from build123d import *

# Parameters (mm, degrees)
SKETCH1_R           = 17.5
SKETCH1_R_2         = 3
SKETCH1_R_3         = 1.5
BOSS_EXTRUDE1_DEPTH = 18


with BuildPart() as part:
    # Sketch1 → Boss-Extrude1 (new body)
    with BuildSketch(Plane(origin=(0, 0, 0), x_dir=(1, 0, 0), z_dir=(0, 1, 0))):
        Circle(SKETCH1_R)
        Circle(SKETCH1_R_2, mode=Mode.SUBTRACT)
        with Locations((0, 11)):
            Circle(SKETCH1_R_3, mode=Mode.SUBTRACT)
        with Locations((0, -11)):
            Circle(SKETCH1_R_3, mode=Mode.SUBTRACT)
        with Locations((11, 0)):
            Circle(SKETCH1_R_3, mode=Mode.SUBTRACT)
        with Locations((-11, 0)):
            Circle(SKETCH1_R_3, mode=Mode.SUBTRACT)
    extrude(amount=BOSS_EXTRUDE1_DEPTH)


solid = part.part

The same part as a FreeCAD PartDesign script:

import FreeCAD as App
import Part
import Sketcher

V = App.Vector
Q = App.Units.Quantity

doc = App.newDocument("Part")
body = doc.addObject("PartDesign::Body", "Body")

sketch1 = doc.addObject("Sketcher::SketchObject", "Sketch")
body.addObject(sketch1)
sketch1.AttachmentSupport = (doc.XZ_Plane, [""])
sketch1.MapMode = "FlatFace"
sketch1.addGeometry([
    Part.Circle(V(0, 0, 0), V(0, 0, 1), 17.5),
    Part.Circle(V(0, 11, 0), V(0, 0, 1), 1.5),
    Part.Circle(V(-11, 0, 0), V(0, 0, 1), 1.5),
    Part.Circle(V(0, 0, 0), V(0, 0, 1), 3),
    Part.Circle(V(11, 0, 0), V(0, 0, 1), 1.5),
    Part.Circle(V(0, -11, 0), V(0, 0, 1), 1.5),
], False)
sketch1.addConstraint([
    Sketcher.Constraint("Coincident", 0, 3, -1, 1),
    Sketcher.Constraint("Coincident", 3, 3, -1, 1),
    Sketcher.Constraint("Equal", 1, 2),
    Sketcher.Constraint("Equal", 2, 4),
    Sketcher.Constraint("Equal", 4, 5),
    Sketcher.Constraint("Symmetric", 2, 3, 4, 3, -1, 1),
    Sketcher.Constraint("Symmetric", 1, 3, 5, 3, -1, 1),
    Sketcher.Constraint("PointOnObject", 1, 3, -2),
    Sketcher.Constraint("PointOnObject", 2, 3, -1),
    Sketcher.Constraint("Diameter", 0, Q("35 mm")),
    Sketcher.Constraint("Diameter", 1, Q("3 mm")),
    Sketcher.Constraint("Diameter", 3, Q("6 mm")),
    Sketcher.Constraint("DistanceY", -1, 1, 1, 3, Q("11 mm")),
    Sketcher.Constraint("DistanceX", 2, 3, -1, 1, Q("11 mm")),
])
pad1 = doc.addObject("PartDesign::Pad", "Pad")
body.addObject(pad1)
pad1.Profile = sketch1
pad1.Length = 18
pad1.Reversed = True

doc.recompute()
